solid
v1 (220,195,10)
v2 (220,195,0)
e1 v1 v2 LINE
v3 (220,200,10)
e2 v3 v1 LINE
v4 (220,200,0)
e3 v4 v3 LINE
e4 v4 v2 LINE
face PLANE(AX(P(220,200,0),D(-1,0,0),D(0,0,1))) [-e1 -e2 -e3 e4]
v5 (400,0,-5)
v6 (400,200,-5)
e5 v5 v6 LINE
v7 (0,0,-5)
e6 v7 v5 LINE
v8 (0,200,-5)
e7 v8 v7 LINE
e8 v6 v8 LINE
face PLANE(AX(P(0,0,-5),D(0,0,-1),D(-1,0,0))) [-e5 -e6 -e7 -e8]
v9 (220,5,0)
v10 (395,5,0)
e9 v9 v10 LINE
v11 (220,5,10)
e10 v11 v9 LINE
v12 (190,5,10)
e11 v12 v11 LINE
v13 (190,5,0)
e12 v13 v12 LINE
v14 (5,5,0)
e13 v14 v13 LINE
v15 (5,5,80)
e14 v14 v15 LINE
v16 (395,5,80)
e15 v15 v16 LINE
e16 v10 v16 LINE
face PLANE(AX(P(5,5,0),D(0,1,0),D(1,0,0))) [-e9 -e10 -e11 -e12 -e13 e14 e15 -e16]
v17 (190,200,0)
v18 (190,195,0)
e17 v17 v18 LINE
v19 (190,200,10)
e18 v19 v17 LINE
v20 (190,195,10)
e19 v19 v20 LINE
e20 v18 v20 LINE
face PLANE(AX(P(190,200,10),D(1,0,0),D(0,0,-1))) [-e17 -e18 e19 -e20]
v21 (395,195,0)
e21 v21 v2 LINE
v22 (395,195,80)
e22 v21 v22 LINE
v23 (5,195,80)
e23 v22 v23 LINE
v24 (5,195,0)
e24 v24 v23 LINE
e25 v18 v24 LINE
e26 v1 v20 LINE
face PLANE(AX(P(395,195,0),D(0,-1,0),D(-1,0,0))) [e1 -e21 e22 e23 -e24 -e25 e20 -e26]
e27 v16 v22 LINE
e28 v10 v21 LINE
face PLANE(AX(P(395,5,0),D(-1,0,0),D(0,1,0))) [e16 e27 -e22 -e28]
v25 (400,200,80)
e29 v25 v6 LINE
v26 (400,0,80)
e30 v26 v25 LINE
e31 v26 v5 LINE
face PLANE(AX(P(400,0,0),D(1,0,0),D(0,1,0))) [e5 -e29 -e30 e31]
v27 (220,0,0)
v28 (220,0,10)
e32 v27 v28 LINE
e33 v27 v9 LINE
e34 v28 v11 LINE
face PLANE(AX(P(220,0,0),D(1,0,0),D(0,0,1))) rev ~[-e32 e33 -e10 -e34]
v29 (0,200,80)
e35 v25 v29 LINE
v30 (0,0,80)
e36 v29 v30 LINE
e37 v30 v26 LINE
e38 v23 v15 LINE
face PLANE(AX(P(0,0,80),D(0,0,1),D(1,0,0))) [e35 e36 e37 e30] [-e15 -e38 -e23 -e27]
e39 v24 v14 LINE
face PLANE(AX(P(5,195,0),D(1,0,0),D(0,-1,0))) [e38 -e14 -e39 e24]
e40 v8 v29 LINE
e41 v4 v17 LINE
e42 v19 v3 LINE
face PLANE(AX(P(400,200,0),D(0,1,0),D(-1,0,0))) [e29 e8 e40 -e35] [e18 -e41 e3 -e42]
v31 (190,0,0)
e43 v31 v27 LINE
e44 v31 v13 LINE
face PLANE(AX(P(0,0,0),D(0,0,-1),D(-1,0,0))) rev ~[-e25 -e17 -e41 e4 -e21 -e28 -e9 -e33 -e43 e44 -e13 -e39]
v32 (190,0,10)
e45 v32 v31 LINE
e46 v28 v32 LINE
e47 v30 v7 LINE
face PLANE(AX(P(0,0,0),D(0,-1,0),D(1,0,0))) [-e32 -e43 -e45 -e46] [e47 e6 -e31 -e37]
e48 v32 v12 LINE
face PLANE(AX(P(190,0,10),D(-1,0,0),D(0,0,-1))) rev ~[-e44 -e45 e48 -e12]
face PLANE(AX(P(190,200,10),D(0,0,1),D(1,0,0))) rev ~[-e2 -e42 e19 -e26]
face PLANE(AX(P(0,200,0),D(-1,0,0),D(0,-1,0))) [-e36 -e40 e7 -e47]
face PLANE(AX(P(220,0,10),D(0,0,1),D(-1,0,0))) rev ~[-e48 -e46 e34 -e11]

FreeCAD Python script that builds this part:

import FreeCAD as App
import Part
import Sketcher
Q = App.Units.Quantity

doc = App.newDocument("Part")
body = doc.addObject("PartDesign::Body", "Body")

# Sketch on XY plane
sketch1 = doc.addObject("Sketcher::SketchObject", "Sketch")
body.addObject(sketch1)
sketch1.AttachmentSupport = (doc.XY_Plane, [""])
sketch1.MapMode = "FlatFace"
sketch1.addGeometry([
    Part.LineSegment(App.Vector(0, 200, 0), App.Vector(0, 0, 0)),  # 0
    Part.LineSegment(App.Vector(0, 0, 0), App.Vector(400, 0, 0)),  # 1
    Part.LineSegment(App.Vector(400, 0, 0), App.Vector(400, 200, 0)),  # 2
    Part.LineSegment(App.Vector(400, 200, 0), App.Vector(0, 200, 0)),  # 3
    Part.LineSegment(App.Vector(395, 5, 0), App.Vector(5, 5, 0)),  # 4
    Part.LineSegment(App.Vector(5, 5, 0), App.Vector(5, 195, 0)),  # 5
    Part.LineSegment(App.Vector(5, 195, 0), App.Vector(395, 195, 0)),  # 6
    Part.LineSegment(App.Vector(395, 195, 0), App.Vector(395, 5, 0)),  # 7
], False)
sketch1.addConstraint([
    Sketcher.Constraint("Coincident", 0, 2, 1, 1),
    Sketcher.Constraint("Coincident", 1, 2, 2, 1),
    Sketcher.Constraint("Coincident", 2, 2, 3, 1),
    Sketcher.Constraint("Coincident", 3, 2, 0, 1),
    Sketcher.Constraint("Coincident", 4, 2, 5, 1),
    Sketcher.Constraint("Coincident", 5, 2, 6, 1),
    Sketcher.Constraint("Coincident", 6, 2, 7, 1),
    Sketcher.Constraint("Coincident", 7, 2, 4, 1),
    Sketcher.Constraint("Vertical", 0),
    Sketcher.Constraint("Horizontal", 1),
    Sketcher.Constraint("Vertical", 2),
    Sketcher.Constraint("Horizontal", 3),
    Sketcher.Constraint("Horizontal", 4),
    Sketcher.Constraint("Vertical", 5),
    Sketcher.Constraint("Horizontal", 6),
    Sketcher.Constraint("Vertical", 7),
    Sketcher.Constraint("Coincident", 0, 2, -1, 1),
    Sketcher.Constraint("DistanceX", 1, 1, 1, 2, Q("400 mm")),
    Sketcher.Constraint("DistanceX", 4, 2, 4, 1, Q("390 mm")),
    Sketcher.Constraint("DistanceY", 0, 2, 0, 1, Q("200 mm")),
    Sketcher.Constraint("DistanceY", 5, 1, 5, 2, Q("190 mm")),
    Sketcher.Constraint("DistanceX", -1, 1, 4, 2, Q("5 mm")),
    Sketcher.Constraint("DistanceY", -1, 1, 4, 2, Q("5 mm")),
])
pad1 = doc.addObject("PartDesign::Pad", "Pad")
body.addObject(pad1)
pad1.Profile = sketch1
pad1.Length = 80

# Sketch on XZ plane
sketch2 = doc.addObject("Sketcher::SketchObject", "Sketch001")
body.addObject(sketch2)
sketch2.AttachmentSupport = (doc.XZ_Plane, [""])
sketch2.MapMode = "FlatFace"
sketch2.addGeometry([
    Part.LineSegment(App.Vector(190, 10, 0), App.Vector(190, 0, 0)),
    Part.LineSegment(App.Vector(190, 0, 0), App.Vector(220, 0, 0)),
    Part.LineSegment(App.Vector(220, 0, 0), App.Vector(220, 10, 0)),
    Part.LineSegment(App.Vector(220, 10, 0), App.Vector(190, 10, 0)),
], False)
sketch2.addConstraint([
    Sketcher.Constraint("Coincident", 0, 2, 1, 1),
    Sketcher.Constraint("Coincident", 1, 2, 2, 1),
    Sketcher.Constraint("Coincident", 2, 2, 3, 1),
    Sketcher.Constraint("Coincident", 3, 2, 0, 1),
    Sketcher.Constraint("Vertical", 0),
    Sketcher.Constraint("Horizontal", 1),
    Sketcher.Constraint("Vertical", 2),
    Sketcher.Constraint("Horizontal", 3),
    Sketcher.Constraint("PointOnObject", 0, 2, -1),
    Sketcher.Constraint("DistanceX", 1, 1, 1, 2, Q("30 mm")),
    Sketcher.Constraint("DistanceY", 0, 2, 0, 1, Q("10 mm")),
    Sketcher.Constraint("DistanceX", -1, 1, 0, 2, Q("190 mm")),
])
pocket1 = doc.addObject("PartDesign::Pocket", "Pocket")
body.addObject(pocket1)
pocket1.Profile = sketch2
pocket1.Length = 80

# Sketch on XZ plane
sketch3 = doc.addObject("Sketcher::SketchObject", "Sketch002")
body.addObject(sketch3)
sketch3.AttachmentSupport = (doc.XZ_Plane, [""])
sketch3.MapMode = "FlatFace"
sketch3.AttachmentOffset = App.Placement(App.Vector(0, 0, -200), App.Rotation())
sketch3.addGeometry([
    Part.LineSegment(App.Vector(190, 0, 0), App.Vector(190, 10, 0)),
    Part.LineSegment(App.Vector(190, 10, 0), App.Vector(220, 10, 0)),
    Part.LineSegment(App.Vector(220, 10, 0), App.Vector(220, 0, 0)),
    Part.LineSegment(App.Vector(220, 0, 0), App.Vector(190, 0, 0)),
], False)
sketch3.addConstraint([
    Sketcher.Constraint("Coincident", 0, 2, 1, 1),
    Sketcher.Constraint("Coincident", 1, 2, 2, 1),
    Sketcher.Constraint("Coincident", 2, 2, 3, 1),
    Sketcher.Constraint("Coincident", 3, 2, 0, 1),
    Sketcher.Constraint("Vertical", 0),
    Sketcher.Constraint("Horizontal", 1),
    Sketcher.Constraint("Vertical", 2),
    Sketcher.Constraint("Horizontal", 3),
    Sketcher.Constraint("PointOnObject", 2, 2, -1),
    Sketcher.Constraint("DistanceX", 1, 1, 1, 2, Q("30 mm")),
    Sketcher.Constraint("DistanceY", 0, 1, 0, 2, Q("10 mm")),
    Sketcher.Constraint("DistanceX", -1, 1, 0, 2, Q("190 mm")),
])
pocket2 = doc.addObject("PartDesign::Pocket", "Pocket001")
body.addObject(pocket2)
pocket2.Profile = sketch3
pocket2.Length = 80
pocket2.Reversed = True

# Sketch on XY plane
sketch4 = doc.addObject("Sketcher::SketchObject", "Sketch003")
body.addObject(sketch4)
sketch4.AttachmentSupport = (doc.XY_Plane, [""])
sketch4.MapMode = "FlatFace"
sketch4.addGeometry([
    Part.LineSegment(App.Vector(0, 200, 0), App.Vector(400, 200, 0)),
    Part.LineSegment(App.Vector(400, 200, 0), App.Vector(400, 0, 0)),
    Part.LineSegment(App.Vector(400, 0, 0), App.Vector(0, 0, 0)),
    Part.LineSegment(App.Vector(0, 0, 0), App.Vector(0, 200, 0)),
], False)
sketch4.addConstraint([
    Sketcher.Constraint("Coincident", 0, 2, 1, 1),
    Sketcher.Constraint("Coincident", 1, 2, 2, 1),
    Sketcher.Constraint("Coincident", 2, 2, 3, 1),
    Sketcher.Constraint("Coincident", 3, 2, 0, 1),
    Sketcher.Constraint("Horizontal", 0),
    Sketcher.Constraint("Vertical", 1),
    Sketcher.Constraint("Horizontal", 2),
    Sketcher.Constraint("Vertical", 3),
    Sketcher.Constraint("Coincident", 2, 2, -1, 1),
    Sketcher.Constraint("DistanceX", 0, 1, 0, 2, Q("400 mm")),
    Sketcher.Constraint("DistanceY", 1, 2, 1, 1, Q("200 mm")),
])
pad2 = doc.addObject("PartDesign::Pad", "Pad001")
body.addObject(pad2)
pad2.Profile = sketch4
pad2.Length = 5
pad2.Reversed = True

doc.recompute()
